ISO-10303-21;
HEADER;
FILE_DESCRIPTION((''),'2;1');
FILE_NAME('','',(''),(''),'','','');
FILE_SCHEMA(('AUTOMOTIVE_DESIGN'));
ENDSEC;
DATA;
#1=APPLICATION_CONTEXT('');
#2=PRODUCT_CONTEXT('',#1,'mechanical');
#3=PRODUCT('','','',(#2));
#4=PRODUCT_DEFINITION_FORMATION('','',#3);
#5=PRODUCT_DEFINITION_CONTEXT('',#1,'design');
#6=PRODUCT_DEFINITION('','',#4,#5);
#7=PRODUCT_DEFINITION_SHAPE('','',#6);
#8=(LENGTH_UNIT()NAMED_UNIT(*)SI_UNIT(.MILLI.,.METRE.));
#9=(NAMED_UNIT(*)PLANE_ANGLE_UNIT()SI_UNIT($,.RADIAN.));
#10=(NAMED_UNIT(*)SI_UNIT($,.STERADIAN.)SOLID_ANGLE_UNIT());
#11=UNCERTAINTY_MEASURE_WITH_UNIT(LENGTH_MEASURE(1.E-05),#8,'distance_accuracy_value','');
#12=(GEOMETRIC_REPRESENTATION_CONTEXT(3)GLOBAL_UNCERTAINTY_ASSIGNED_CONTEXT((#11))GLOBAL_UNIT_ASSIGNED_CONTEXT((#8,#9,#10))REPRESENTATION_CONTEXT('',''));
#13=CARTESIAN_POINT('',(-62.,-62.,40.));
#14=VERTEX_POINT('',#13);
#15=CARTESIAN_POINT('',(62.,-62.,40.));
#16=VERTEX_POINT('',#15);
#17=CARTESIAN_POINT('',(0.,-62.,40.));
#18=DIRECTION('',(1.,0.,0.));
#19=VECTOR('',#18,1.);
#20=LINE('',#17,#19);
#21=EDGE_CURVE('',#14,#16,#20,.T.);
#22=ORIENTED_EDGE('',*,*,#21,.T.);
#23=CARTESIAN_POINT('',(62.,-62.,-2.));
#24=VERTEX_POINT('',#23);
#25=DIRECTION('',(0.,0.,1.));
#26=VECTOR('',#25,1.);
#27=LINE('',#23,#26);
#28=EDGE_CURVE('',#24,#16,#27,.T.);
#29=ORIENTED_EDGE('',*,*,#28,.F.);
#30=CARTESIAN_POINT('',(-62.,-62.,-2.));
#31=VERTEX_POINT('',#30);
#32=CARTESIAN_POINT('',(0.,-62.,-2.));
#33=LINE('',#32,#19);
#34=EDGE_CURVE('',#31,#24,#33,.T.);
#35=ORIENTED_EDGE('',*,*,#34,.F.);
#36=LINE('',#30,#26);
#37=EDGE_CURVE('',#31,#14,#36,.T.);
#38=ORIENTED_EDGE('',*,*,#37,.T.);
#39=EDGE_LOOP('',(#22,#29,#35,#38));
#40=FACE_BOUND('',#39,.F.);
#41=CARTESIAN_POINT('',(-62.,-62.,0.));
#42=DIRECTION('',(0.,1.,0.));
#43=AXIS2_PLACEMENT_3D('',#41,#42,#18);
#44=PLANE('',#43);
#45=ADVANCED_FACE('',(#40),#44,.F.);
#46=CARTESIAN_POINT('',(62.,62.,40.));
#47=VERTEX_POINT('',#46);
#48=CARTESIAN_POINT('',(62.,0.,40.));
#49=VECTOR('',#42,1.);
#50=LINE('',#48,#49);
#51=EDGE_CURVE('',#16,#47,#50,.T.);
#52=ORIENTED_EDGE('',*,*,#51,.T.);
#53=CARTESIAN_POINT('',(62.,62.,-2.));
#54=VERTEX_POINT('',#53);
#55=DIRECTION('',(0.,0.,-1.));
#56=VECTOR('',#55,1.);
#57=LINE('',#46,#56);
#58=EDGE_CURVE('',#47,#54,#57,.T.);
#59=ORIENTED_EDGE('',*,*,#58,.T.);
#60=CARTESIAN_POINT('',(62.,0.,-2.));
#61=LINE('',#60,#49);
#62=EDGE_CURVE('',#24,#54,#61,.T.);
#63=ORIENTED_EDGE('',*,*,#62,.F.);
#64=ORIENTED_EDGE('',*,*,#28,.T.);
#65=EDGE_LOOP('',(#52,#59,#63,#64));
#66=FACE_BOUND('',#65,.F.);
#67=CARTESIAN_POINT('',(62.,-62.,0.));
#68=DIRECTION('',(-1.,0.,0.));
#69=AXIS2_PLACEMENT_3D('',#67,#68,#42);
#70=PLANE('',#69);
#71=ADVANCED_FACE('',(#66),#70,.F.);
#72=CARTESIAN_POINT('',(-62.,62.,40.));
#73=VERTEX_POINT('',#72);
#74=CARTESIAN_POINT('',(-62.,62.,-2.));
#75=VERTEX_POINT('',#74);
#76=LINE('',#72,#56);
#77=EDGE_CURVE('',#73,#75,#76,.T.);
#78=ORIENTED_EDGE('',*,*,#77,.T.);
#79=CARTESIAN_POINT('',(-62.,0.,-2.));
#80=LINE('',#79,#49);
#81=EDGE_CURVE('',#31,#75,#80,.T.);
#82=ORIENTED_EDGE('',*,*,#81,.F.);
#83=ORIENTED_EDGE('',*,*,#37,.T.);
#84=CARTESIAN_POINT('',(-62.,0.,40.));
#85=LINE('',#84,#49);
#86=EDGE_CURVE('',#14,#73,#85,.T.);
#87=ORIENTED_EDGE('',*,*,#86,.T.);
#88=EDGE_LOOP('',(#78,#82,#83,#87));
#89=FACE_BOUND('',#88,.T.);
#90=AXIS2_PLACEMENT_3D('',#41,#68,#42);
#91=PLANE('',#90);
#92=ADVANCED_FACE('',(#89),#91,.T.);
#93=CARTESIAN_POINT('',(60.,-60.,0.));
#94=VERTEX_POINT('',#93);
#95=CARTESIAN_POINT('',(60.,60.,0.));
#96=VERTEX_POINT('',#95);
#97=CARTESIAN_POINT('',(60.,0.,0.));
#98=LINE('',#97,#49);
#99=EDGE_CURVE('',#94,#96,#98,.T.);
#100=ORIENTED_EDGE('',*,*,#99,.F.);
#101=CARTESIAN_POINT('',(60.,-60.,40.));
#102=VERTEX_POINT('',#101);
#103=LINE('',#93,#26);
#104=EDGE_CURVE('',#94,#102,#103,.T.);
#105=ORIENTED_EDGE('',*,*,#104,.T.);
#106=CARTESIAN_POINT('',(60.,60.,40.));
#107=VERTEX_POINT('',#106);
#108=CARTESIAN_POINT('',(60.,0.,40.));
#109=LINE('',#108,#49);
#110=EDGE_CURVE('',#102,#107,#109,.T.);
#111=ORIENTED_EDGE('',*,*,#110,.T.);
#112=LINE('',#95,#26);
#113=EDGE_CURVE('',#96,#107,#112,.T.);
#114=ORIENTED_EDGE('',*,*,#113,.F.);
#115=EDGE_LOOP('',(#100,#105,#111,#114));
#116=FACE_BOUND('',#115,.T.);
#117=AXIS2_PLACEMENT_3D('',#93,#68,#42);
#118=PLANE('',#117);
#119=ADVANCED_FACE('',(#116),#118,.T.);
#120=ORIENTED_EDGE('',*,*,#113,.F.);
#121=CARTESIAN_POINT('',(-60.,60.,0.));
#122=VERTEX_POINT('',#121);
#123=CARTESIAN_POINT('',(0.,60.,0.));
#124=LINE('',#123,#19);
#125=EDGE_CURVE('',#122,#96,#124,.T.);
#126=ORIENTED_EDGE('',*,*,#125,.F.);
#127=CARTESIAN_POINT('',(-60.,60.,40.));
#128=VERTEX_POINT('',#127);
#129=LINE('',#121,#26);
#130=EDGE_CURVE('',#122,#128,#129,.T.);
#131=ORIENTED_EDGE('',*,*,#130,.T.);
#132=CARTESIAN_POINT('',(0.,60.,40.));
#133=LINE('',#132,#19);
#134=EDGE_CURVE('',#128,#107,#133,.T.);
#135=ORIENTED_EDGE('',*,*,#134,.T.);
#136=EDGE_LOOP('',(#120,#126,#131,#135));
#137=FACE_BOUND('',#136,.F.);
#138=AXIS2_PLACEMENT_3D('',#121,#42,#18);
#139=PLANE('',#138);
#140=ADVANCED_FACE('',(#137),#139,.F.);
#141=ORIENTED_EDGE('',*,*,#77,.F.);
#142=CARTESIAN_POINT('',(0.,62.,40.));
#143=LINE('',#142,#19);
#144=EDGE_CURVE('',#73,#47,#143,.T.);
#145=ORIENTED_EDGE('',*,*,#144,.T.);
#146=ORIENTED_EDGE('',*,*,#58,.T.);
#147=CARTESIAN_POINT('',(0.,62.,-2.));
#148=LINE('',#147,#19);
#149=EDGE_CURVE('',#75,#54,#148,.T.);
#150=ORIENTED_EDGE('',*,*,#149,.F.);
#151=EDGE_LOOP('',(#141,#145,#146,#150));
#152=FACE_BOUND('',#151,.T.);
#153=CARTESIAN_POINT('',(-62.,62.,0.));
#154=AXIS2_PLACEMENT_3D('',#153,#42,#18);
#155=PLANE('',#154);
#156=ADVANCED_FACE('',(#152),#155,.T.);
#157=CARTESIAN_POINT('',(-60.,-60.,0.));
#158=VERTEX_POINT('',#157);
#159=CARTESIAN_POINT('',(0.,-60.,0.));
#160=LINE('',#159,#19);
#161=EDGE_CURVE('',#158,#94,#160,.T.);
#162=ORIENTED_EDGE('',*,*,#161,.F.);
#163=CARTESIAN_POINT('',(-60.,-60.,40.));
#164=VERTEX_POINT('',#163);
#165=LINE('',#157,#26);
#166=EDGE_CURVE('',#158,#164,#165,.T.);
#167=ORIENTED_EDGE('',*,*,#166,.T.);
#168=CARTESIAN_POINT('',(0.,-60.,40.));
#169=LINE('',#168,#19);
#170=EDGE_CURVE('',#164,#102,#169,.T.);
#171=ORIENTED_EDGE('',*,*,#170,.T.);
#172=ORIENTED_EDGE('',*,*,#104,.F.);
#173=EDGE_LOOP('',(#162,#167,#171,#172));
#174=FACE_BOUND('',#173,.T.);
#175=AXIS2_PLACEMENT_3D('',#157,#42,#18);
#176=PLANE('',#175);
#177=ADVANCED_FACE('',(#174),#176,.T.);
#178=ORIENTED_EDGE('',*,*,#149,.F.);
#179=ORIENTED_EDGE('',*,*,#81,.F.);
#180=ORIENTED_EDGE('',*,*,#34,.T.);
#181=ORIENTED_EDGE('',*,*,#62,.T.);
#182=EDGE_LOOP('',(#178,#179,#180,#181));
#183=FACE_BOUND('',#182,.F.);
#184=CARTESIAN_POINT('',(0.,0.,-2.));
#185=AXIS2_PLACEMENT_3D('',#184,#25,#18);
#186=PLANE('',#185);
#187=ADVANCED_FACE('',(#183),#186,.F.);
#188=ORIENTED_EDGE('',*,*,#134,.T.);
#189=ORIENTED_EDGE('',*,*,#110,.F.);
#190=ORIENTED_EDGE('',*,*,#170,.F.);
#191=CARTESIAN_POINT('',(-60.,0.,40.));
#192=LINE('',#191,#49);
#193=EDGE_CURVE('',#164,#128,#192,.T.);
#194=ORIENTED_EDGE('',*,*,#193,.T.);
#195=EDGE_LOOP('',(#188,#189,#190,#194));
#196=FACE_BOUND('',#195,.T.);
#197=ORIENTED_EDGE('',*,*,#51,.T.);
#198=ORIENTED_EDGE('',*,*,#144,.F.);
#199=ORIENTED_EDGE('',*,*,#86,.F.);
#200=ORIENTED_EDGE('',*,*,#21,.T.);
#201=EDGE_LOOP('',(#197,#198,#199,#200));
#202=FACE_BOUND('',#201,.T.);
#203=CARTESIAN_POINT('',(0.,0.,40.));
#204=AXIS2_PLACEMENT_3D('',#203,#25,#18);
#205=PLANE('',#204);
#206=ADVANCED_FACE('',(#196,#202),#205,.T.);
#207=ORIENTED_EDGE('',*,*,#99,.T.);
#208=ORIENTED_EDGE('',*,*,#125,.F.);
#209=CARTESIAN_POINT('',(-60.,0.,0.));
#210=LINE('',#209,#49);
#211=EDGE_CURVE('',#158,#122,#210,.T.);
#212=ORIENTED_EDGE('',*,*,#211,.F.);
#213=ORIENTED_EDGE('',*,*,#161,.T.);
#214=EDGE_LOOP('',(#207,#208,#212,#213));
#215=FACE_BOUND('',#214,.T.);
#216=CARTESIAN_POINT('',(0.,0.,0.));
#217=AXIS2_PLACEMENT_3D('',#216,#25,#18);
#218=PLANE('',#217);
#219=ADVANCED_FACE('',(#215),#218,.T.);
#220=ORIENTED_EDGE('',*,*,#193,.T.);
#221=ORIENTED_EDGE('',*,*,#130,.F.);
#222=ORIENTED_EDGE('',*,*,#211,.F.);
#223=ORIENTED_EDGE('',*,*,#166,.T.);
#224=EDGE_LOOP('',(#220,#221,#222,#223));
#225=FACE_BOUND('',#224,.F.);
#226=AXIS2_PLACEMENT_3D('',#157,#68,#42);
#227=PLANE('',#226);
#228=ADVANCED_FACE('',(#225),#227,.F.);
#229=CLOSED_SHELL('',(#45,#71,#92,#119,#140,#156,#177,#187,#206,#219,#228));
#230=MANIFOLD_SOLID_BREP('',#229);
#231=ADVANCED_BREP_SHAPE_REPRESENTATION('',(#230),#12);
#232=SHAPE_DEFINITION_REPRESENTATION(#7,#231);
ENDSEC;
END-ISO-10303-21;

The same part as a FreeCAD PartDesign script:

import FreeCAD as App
import Part
import Sketcher

V = App.Vector

doc = App.newDocument("Part")
body = doc.addObject("PartDesign::Body", "Body")

# Sketch on XY plane
sketch1 = doc.addObject("Sketcher::SketchObject", "Sketch")
body.addObject(sketch1)
sketch1.AttachmentSupport = (doc.XY_Plane, [""])
sketch1.MapMode = "FlatFace"
sketch1.addGeometry([
    Part.LineSegment(V(-62, 62, 0), V(-62, -62, 0)),
    Part.LineSegment(V(-62, -62, 0), V(62, -62, 0)),
    Part.LineSegment(V(62, -62, 0), V(62, 62, 0)),
    Part.LineSegment(V(62, 62, 0), V(-62, 62, 0)),
], False)
sketch1.addConstraint([
    Sketcher.Constraint("Coincident", 0, 2, 1, 1),
    Sketcher.Constraint("Coincident", 1, 2, 2, 1),
    Sketcher.Constraint("Coincident", 2, 2, 3, 1),
    Sketcher.Constraint("Coincident", 3, 2, 0, 1),
    Sketcher.Constraint("Vertical", 0),
    Sketcher.Constraint("Horizontal", 1),
    Sketcher.Constraint("Vertical", 2),
    Sketcher.Constraint("Horizontal", 3),
    Sketcher.Constraint("Symmetric", 0, 2, 2, 2, -1, 1),
    Sketcher.Constraint("Equal", 3, 0),
    Sketcher.Constraint("DistanceX", 1, 1, 1, 2, 124.0),
])
pad1 = doc.addObject("PartDesign::Pad", "Pad")
body.addObject(pad1)
pad1.Profile = sketch1
pad1.Length = 2
pad1.Reversed = True

# Sketch on XY plane
sketch2 = doc.addObject("Sketcher::SketchObject", "Sketch001")
body.addObject(sketch2)
sketch2.AttachmentSupport = (doc.XY_Plane, [""])
sketch2.MapMode = "FlatFace"
sketch2.addGeometry([
    Part.LineSegment(V(-62, 62, 0), V(-62, -62, 0)),  # 0
    Part.LineSegment(V(-62, -62, 0), V(62, -62, 0)),  # 1
    Part.LineSegment(V(62, -62, 0), V(62, 62, 0)),  # 2
    Part.LineSegment(V(62, 62, 0), V(-62, 62, 0)),  # 3
    Part.LineSegment(V(60, -60, 0), V(-60, -60, 0)),  # 4
    Part.LineSegment(V(-60, -60, 0), V(-60, 60, 0)),  # 5
    Part.LineSegment(V(-60, 60, 0), V(60, 60, 0)),  # 6
    Part.LineSegment(V(60, 60, 0), V(60, -60, 0)),  # 7
], False)
sketch2.addConstraint([
    Sketcher.Constraint("Coincident", 0, 2, 1, 1),
    Sketcher.Constraint("Coincident", 1, 2, 2, 1),
    Sketcher.Constraint("Coincident", 2, 2, 3, 1),
    Sketcher.Constraint("Coincident", 3, 2, 0, 1),
    Sketcher.Constraint("Coincident", 4, 2, 5, 1),
    Sketcher.Constraint("Coincident", 5, 2, 6, 1),
    Sketcher.Constraint("Coincident", 6, 2, 7, 1),
    Sketcher.Constraint("Coincident", 7, 2, 4, 1),
    Sketcher.Constraint("Vertical", 0),
    Sketcher.Constraint("Horizontal", 1),
    Sketcher.Constraint("Vertical", 2),
    Sketcher.Constraint("Horizontal", 3),
    Sketcher.Constraint("Horizontal", 4),
    Sketcher.Constraint("Vertical", 5),
    Sketcher.Constraint("Horizontal", 6),
    Sketcher.Constraint("Vertical", 7),
    Sketcher.Constraint("Symmetric", 0, 2, 2, 2, -1, 1),
    Sketcher.Constraint("Symmetric", 4, 2, 6, 2, -1, 1),
    Sketcher.Constraint("Equal", 3, 0),
    Sketcher.Constraint("Equal", 6, 5),
    Sketcher.Constraint("DistanceX", 1, 1, 1, 2, 124.0),
    Sketcher.Constraint("DistanceX", 4, 2, 4, 1, 120.0),
])
pad2 = doc.addObject("PartDesign::Pad", "Pad001")
body.addObject(pad2)
pad2.Profile = sketch2
pad2.Length = 40

doc.recompute()
